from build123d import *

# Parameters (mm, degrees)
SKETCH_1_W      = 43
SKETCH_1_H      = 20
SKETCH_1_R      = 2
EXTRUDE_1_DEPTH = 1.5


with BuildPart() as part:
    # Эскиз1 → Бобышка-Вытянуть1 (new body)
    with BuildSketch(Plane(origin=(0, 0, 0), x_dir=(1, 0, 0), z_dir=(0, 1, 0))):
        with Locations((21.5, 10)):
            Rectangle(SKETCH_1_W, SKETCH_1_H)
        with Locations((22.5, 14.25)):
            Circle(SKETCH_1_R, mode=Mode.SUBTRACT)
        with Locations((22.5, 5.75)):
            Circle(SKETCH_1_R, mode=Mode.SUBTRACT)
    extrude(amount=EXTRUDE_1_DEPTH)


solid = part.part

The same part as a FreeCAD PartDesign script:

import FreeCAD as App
import Part
import Sketcher
Q = App.Units.Quantity

doc = App.newDocument("Part")
body = doc.addObject("PartDesign::Body", "Body")

sketch1 = body.newObject("Sketcher::SketchObject", "Sketch")
sketch1.AttachmentSupport = (doc.getObject("XZ_Plane"), [""])
sketch1.MapMode = "FlatFace"
sketch1.addGeometry(Part.LineSegment(App.Vector(0, -20, 0), App.Vector(0, 0, 0)), False)
sketch1.addGeometry(Part.LineSegment(App.Vector(0, 0, 0), App.Vector(43, 0, 0)), False)
sketch1.addGeometry(Part.LineSegment(App.Vector(43, 0, 0), App.Vector(43, -20, 0)), False)
sketch1.addGeometry(Part.LineSegment(App.Vector(43, -20, 0), App.Vector(0, -20, 0)), False)
sketch1.addGeometry(Part.Circle(App.Vector(22.5, -5.8, 0), App.Vector(0, 0, 1), 2), False)
sketch1.addGeometry(Part.Circle(App.Vector(22.5, -14.2, 0), App.Vector(0, 0, 1), 2), False)
sketch1.addConstraint(Sketcher.Constraint("Coincident", 0, 2, 1, 1))
sketch1.addConstraint(Sketcher.Constraint("Coincident", 1, 2, 2, 1))
sketch1.addConstraint(Sketcher.Constraint("Coincident", 2, 2, 3, 1))
sketch1.addConstraint(Sketcher.Constraint("Coincident", 3, 2, 0, 1))
sketch1.addConstraint(Sketcher.Constraint("Vertical", 0))
sketch1.addConstraint(Sketcher.Constraint("Horizontal", 1))
sketch1.addConstraint(Sketcher.Constraint("Vertical", 2))
sketch1.addConstraint(Sketcher.Constraint("Horizontal", 3))
sketch1.addConstraint(Sketcher.Constraint("Coincident", 0, 2, -1, 1))
sketch1.addConstraint(Sketcher.Constraint("Equal", 4, 5))
sketch1.addConstraint(Sketcher.Constraint("Vertical", 4, 3, 5, 3))
sketch1.addConstraint(Sketcher.Constraint("Diameter", 4, Q("4 mm")))
sketch1.addConstraint(Sketcher.Constraint("DistanceX", 1, 1, 1, 2, Q("43 mm")))
sketch1.addConstraint(Sketcher.Constraint("DistanceY", 0, 1, 0, 2, Q("20 mm")))
sketch1.addConstraint(Sketcher.Constraint("DistanceX", -1, 1, 4, 3, Q("22.5 mm")))
sketch1.addConstraint(Sketcher.Constraint("DistanceY", 5, 3, 4, 3, Q("8.5 mm")))
sketch1.addConstraint(Sketcher.Constraint("DistanceY", 4, 3, -1, 1, Q("5.75 mm")))
pad1 = body.newObject("PartDesign::Pad", "Pad")
pad1.Profile = sketch1
pad1.Length = 1.5
pad1.Reversed = True

doc.recompute()
